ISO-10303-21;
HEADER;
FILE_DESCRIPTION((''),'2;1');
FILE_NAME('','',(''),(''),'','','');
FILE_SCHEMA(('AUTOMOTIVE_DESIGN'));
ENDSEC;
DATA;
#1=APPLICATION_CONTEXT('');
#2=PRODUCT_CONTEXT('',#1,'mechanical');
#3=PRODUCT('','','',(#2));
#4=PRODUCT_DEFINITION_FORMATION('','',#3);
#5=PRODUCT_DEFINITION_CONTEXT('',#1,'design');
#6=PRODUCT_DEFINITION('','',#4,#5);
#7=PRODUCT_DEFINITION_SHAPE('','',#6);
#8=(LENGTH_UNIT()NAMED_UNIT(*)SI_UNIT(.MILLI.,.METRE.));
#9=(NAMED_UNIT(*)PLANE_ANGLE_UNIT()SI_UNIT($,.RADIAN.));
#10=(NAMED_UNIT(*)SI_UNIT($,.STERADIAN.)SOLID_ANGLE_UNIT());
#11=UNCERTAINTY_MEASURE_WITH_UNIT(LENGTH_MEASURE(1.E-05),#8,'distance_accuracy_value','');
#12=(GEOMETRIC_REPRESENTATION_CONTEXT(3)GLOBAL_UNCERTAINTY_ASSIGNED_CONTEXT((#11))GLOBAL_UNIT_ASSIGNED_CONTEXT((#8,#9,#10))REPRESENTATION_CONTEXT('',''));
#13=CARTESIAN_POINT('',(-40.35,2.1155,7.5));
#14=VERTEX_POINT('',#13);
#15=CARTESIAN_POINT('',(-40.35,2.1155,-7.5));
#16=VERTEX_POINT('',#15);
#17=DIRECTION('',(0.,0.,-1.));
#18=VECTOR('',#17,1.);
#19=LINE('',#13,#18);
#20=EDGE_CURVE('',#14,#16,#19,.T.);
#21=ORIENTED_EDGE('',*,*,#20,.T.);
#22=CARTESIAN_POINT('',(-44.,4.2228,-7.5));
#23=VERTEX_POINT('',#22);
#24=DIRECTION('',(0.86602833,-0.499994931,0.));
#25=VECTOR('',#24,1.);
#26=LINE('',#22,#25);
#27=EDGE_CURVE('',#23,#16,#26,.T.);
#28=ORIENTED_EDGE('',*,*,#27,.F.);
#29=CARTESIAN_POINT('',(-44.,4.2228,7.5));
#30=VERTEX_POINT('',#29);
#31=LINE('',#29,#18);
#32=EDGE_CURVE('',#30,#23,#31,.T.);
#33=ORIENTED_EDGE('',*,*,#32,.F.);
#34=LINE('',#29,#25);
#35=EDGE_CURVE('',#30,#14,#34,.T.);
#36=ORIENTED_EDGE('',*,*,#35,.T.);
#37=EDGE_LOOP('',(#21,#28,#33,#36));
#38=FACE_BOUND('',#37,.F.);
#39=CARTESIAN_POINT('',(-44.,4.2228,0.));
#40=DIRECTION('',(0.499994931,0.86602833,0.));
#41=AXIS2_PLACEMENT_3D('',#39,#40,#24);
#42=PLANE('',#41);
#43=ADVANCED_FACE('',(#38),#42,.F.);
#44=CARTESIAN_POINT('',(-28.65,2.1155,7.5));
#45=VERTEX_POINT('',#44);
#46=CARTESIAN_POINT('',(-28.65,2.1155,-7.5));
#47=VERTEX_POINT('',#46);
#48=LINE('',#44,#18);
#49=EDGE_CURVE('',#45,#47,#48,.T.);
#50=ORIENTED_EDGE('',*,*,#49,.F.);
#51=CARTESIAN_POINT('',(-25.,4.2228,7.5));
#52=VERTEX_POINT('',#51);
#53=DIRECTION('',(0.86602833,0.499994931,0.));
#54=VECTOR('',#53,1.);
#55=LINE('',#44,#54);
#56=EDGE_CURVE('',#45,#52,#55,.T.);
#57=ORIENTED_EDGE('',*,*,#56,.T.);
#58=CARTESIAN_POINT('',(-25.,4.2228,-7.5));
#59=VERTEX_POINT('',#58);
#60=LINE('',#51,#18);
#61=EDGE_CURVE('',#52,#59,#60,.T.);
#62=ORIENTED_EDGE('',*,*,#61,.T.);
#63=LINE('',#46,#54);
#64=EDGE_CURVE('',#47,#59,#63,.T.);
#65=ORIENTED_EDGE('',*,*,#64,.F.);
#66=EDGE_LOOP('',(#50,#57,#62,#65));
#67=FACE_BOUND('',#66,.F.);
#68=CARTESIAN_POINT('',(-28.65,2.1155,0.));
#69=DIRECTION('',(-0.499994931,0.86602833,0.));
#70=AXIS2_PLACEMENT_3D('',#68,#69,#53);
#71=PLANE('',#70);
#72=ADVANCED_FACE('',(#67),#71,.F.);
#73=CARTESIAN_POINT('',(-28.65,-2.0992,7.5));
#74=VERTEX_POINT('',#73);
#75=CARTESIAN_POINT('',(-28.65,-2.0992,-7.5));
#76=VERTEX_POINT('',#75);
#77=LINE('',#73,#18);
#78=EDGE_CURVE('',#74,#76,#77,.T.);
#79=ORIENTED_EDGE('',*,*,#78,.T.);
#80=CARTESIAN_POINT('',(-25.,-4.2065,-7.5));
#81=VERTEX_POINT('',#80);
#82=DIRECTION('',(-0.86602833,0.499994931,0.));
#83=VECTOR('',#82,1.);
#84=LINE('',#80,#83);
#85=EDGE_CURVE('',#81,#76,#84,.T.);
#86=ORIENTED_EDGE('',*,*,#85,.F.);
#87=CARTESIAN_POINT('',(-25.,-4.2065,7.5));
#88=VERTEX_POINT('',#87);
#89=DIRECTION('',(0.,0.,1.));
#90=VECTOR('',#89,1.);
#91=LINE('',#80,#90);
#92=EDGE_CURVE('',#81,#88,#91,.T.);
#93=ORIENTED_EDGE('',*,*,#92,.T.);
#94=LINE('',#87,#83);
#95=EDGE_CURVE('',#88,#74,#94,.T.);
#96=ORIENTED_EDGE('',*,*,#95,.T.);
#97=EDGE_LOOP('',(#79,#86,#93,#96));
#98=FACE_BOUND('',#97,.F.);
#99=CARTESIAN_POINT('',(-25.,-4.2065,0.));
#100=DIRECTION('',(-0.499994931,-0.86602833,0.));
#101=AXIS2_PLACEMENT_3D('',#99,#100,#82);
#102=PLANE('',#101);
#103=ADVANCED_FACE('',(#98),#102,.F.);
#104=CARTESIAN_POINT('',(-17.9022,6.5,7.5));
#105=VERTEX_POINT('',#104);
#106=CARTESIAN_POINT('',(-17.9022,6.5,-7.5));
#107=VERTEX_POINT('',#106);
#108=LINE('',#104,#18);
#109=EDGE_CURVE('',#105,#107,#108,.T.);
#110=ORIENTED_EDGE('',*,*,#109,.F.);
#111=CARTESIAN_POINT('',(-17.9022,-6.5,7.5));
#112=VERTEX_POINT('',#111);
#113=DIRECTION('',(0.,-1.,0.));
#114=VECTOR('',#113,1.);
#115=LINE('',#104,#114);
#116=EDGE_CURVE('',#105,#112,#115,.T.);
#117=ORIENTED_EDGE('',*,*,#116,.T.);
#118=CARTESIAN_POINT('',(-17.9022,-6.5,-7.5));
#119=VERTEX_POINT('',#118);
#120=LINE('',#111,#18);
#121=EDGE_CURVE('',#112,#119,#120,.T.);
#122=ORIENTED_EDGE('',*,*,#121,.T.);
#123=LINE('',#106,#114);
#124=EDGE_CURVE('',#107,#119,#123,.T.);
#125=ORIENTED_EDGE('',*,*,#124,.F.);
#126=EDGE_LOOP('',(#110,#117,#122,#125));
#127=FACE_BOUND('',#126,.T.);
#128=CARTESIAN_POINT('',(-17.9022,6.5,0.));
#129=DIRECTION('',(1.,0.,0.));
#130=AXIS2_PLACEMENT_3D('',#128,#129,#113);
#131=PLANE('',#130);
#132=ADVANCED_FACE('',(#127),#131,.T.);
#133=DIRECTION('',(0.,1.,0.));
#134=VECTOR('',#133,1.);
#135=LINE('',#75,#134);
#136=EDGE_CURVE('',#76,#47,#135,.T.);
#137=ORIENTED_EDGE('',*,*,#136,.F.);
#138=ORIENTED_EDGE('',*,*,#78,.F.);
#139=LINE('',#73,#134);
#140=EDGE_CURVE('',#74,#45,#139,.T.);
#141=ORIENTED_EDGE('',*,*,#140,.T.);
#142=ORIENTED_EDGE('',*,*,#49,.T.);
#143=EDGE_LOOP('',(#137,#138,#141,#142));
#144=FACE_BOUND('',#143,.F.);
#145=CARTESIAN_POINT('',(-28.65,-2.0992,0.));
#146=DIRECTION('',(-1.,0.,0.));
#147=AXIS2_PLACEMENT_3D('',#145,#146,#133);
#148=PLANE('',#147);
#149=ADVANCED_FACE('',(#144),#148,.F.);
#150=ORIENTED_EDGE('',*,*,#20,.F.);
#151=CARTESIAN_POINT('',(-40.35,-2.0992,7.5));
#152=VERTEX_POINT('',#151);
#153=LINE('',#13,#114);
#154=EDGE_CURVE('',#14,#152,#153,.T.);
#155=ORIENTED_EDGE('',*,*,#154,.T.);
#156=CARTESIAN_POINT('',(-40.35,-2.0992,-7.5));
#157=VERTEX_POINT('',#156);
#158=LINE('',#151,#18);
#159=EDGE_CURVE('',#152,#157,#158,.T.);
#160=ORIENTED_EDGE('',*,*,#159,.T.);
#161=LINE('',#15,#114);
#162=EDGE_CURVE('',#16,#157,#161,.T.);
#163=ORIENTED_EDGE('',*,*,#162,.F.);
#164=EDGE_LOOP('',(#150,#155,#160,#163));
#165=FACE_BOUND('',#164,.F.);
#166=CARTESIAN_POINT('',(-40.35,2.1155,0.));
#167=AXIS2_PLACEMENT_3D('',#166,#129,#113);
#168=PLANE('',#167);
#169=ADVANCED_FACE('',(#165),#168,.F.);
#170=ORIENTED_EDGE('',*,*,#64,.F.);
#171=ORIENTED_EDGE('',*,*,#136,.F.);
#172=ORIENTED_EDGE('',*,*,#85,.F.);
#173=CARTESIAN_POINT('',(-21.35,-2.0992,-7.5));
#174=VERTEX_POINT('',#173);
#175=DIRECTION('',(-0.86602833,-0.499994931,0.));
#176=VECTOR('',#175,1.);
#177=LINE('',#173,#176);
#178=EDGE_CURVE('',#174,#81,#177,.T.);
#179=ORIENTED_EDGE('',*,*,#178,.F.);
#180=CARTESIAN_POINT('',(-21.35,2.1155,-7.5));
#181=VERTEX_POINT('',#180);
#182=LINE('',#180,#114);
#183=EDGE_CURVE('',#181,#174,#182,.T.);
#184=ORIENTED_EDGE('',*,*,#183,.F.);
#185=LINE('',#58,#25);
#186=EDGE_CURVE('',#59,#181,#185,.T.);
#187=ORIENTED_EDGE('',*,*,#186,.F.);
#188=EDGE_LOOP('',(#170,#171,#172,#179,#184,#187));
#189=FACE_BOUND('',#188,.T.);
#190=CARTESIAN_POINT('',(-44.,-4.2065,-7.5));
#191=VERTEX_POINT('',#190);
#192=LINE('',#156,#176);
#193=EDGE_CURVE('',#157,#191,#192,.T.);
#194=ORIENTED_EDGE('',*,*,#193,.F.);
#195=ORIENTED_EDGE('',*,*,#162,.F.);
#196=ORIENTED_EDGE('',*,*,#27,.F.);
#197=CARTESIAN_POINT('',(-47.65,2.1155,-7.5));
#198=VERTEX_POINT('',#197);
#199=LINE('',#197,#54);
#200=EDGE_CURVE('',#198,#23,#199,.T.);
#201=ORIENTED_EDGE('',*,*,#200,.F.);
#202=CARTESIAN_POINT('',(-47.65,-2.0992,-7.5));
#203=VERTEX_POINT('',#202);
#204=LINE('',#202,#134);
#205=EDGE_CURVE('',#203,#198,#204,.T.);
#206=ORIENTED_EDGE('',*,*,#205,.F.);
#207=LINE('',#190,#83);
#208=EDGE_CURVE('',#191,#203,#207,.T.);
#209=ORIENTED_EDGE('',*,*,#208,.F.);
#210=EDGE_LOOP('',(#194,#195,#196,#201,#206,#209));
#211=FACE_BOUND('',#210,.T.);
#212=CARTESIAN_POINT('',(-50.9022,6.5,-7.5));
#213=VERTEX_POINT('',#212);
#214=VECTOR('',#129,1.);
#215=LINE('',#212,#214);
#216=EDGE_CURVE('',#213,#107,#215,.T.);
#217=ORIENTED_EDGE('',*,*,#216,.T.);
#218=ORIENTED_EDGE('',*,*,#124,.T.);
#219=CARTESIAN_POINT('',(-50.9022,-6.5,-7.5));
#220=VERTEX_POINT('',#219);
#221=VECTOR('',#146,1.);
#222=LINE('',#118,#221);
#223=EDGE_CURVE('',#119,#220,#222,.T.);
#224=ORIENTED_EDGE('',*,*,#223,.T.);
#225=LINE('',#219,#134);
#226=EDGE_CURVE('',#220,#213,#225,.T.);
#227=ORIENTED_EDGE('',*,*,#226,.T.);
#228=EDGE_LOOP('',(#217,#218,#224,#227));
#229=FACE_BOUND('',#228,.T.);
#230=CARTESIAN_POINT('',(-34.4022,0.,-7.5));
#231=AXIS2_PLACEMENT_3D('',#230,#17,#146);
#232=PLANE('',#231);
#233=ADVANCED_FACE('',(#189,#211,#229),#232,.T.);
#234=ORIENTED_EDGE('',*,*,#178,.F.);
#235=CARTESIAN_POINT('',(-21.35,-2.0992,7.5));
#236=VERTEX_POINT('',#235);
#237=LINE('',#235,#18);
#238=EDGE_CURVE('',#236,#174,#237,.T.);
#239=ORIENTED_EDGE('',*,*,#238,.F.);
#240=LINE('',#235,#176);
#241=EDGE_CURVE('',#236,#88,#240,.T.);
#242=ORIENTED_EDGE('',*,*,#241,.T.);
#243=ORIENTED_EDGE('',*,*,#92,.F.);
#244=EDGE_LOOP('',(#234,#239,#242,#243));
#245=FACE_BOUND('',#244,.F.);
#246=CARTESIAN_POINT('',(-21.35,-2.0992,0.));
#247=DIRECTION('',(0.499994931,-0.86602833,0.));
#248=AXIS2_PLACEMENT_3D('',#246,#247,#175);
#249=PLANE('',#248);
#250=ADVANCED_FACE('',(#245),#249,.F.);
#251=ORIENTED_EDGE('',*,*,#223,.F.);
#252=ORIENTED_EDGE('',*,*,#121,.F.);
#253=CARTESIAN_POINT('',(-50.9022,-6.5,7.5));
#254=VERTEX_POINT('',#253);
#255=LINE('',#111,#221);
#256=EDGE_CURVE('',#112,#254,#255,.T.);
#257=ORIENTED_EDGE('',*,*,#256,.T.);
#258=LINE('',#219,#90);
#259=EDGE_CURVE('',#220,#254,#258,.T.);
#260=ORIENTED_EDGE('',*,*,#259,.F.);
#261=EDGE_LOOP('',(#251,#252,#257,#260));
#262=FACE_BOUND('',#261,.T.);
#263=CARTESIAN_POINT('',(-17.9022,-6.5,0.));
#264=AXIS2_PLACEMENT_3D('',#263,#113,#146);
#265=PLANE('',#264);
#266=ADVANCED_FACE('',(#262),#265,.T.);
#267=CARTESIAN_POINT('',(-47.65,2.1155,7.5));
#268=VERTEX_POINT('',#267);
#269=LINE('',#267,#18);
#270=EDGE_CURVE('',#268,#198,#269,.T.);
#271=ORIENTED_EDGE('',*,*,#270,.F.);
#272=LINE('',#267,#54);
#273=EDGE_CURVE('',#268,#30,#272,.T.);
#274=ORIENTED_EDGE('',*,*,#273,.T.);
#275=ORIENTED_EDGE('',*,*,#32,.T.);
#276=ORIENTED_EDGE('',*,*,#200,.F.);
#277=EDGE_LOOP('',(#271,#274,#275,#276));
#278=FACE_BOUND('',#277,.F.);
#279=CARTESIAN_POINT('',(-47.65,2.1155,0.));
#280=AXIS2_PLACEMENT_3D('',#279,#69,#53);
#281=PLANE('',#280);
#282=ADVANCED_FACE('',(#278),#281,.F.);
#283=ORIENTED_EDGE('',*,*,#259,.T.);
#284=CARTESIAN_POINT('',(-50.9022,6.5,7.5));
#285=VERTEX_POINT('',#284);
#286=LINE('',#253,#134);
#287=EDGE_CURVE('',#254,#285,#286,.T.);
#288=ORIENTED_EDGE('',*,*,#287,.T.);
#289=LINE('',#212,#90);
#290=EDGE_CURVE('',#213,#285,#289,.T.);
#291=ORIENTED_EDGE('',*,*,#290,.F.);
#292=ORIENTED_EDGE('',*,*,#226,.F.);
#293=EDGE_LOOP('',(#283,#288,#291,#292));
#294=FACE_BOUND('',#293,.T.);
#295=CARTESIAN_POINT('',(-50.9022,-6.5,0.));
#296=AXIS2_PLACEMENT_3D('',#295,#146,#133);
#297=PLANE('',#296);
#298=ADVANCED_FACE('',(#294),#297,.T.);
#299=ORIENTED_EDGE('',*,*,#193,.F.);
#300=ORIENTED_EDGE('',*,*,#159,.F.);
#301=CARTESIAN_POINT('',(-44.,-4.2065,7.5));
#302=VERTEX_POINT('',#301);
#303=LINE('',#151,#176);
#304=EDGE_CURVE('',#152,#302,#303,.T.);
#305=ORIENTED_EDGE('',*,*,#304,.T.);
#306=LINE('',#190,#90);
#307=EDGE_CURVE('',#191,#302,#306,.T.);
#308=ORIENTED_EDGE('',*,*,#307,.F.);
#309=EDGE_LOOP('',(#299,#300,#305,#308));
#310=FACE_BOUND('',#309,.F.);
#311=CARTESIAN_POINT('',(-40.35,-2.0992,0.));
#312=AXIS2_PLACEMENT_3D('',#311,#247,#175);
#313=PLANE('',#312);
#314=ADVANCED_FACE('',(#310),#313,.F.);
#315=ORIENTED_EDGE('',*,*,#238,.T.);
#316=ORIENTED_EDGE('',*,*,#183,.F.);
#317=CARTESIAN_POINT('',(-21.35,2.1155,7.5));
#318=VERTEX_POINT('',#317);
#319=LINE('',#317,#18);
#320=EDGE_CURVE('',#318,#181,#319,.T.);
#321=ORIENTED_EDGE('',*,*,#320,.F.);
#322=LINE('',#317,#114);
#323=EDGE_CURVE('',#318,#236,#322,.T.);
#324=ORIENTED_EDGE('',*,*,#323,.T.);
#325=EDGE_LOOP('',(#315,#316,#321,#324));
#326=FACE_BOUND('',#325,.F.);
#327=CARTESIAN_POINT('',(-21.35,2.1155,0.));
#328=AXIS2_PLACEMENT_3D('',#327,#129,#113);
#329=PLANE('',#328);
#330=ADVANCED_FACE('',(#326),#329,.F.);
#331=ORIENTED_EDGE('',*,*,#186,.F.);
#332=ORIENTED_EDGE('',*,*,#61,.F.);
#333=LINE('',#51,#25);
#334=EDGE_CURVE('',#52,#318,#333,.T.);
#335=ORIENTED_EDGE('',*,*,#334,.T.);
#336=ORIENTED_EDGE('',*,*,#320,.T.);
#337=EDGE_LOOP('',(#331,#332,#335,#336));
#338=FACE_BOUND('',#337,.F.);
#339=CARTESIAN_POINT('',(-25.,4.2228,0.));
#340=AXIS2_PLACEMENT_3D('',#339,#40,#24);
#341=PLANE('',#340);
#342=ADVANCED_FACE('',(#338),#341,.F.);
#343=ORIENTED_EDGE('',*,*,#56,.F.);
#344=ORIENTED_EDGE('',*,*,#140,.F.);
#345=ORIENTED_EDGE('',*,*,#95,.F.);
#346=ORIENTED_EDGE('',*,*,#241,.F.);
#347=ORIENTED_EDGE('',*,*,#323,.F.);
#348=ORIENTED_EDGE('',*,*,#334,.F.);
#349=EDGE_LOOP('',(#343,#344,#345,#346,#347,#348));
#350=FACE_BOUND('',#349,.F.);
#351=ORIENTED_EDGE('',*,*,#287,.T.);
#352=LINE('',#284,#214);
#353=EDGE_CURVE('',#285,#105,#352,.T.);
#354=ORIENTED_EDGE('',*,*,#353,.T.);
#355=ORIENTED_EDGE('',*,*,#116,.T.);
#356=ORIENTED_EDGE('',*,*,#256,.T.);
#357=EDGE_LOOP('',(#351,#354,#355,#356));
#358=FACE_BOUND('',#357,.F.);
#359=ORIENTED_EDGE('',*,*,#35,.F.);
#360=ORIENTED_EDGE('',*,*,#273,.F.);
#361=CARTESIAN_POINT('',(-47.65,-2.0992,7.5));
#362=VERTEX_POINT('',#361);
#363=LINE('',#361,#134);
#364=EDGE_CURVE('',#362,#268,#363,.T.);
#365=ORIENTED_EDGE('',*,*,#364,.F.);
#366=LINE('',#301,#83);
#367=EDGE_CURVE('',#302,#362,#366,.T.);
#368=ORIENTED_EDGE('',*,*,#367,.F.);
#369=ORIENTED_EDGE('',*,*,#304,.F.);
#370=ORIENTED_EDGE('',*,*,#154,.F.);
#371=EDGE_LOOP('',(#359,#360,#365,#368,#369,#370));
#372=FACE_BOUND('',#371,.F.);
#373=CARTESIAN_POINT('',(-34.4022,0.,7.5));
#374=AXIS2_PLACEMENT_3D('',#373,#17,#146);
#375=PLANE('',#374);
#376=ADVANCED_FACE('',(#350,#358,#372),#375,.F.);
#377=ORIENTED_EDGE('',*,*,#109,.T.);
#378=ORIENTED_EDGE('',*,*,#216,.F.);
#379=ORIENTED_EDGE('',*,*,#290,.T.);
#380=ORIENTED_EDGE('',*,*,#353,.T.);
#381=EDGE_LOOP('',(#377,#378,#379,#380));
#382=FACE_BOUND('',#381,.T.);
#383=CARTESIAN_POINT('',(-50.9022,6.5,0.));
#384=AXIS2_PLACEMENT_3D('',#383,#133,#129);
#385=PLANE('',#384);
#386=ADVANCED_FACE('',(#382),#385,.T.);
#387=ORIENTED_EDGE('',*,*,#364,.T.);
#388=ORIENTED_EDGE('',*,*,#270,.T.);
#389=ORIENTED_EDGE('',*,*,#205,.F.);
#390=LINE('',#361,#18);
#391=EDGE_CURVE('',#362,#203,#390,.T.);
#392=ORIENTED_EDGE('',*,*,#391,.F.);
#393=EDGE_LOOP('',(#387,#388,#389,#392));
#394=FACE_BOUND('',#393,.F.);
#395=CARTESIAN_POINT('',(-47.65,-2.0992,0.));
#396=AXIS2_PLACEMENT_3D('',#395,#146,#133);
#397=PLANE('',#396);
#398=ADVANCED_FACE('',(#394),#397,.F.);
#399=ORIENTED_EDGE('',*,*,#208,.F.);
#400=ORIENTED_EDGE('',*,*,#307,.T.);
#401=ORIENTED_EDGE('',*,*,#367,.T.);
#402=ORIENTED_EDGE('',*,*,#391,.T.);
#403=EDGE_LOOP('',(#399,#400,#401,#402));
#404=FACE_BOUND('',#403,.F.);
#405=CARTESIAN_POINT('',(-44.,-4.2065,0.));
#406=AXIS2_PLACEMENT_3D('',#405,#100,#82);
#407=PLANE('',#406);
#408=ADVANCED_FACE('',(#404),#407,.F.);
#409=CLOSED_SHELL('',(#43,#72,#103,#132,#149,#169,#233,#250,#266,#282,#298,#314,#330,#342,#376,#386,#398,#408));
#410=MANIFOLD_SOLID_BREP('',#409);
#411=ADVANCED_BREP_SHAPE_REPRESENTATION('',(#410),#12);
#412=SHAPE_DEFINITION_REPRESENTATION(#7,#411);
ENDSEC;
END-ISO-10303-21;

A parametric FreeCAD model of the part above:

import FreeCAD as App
import Part
import Sketcher
from FreeCAD import Vector
Q = App.Units.Quantity

doc = App.newDocument("Part")
body = doc.addObject("PartDesign::Body", "Body")

sketch1 = body.newObject("Sketcher::SketchObject", "Sketch")
sketch1.AttachmentSupport = (doc.getObject("XY_Plane"), [""])
sketch1.MapMode = "FlatFace"
sketch1.addGeometry([
    Part.LineSegment(Vector(-17.9, 6.5, 0), Vector(-50.9, 6.5, 0)),
    Part.LineSegment(Vector(-50.9, 6.5, 0), Vector(-50.9, -6.5, 0)),
    Part.LineSegment(Vector(-50.9, -6.5, 0), Vector(-17.9, -6.5, 0)),
    Part.LineSegment(Vector(-17.9, -6.5, 0), Vector(-17.9, 6.5, 0)),
    Part.LineSegment(Vector(-47.6, -2.1, 0), Vector(-47.6, 2.1, 0)),
    Part.LineSegment(Vector(-47.6, 2.1, 0), Vector(-44, 4.2, 0)),
    Part.LineSegment(Vector(-44, 4.2, 0), Vector(-40.4, 2.1, 0)),
    Part.LineSegment(Vector(-40.4, 2.1, 0), Vector(-40.4, -2.1, 0)),
    Part.LineSegment(Vector(-40.4, -2.1, 0), Vector(-44, -4.2, 0)),
    Part.LineSegment(Vector(-44, -4.2, 0), Vector(-47.6, -2.1, 0)),
    Part.LineSegment(Vector(-28.6, -2.1, 0), Vector(-28.6, 2.1, 0)),
    Part.LineSegment(Vector(-28.6, 2.1, 0), Vector(-25, 4.2, 0)),
    Part.LineSegment(Vector(-25, 4.2, 0), Vector(-21.4, 2.1, 0)),
    Part.LineSegment(Vector(-21.4, 2.1, 0), Vector(-21.4, -2.1, 0)),
    Part.LineSegment(Vector(-21.4, -2.1, 0), Vector(-25, -4.2, 0)),
    Part.LineSegment(Vector(-25, -4.2, 0), Vector(-28.6, -2.1, 0)),
], False)
sketch1.addConstraint([
    Sketcher.Constraint("Coincident", 0, 2, 1, 1),
    Sketcher.Constraint("Coincident", 1, 2, 2, 1),
    Sketcher.Constraint("Coincident", 2, 2, 3, 1),
    Sketcher.Constraint("Coincident", 3, 2, 0, 1),
    Sketcher.Constraint("Coincident", 4, 2, 5, 1),
    Sketcher.Constraint("Coincident", 5, 2, 6, 1),
    Sketcher.Constraint("Coincident", 6, 2, 7, 1),
    Sketcher.Constraint("Coincident", 7, 2, 8, 1),
    Sketcher.Constraint("Coincident", 8, 2, 9, 1),
    Sketcher.Constraint("Coincident", 9, 2, 4, 1),
    Sketcher.Constraint("Coincident", 10, 2, 11, 1),
    Sketcher.Constraint("Coincident", 11, 2, 12, 1),
    Sketcher.Constraint("Coincident", 12, 2, 13, 1),
    Sketcher.Constraint("Coincident", 13, 2, 14, 1),
    Sketcher.Constraint("Coincident", 14, 2, 15, 1),
    Sketcher.Constraint("Coincident", 15, 2, 10, 1),
    Sketcher.Constraint("Horizontal", 0),
    Sketcher.Constraint("Vertical", 1),
    Sketcher.Constraint("Horizontal", 2),
    Sketcher.Constraint("Vertical", 3),
    Sketcher.Constraint("Vertical", 4),
    Sketcher.Constraint("Vertical", 7),
    Sketcher.Constraint("Vertical", 10),
    Sketcher.Constraint("Vertical", 13),
    Sketcher.Constraint("Parallel", 5, 8),
    Sketcher.Constraint("Parallel", 6, 9),
    Sketcher.Constraint("Parallel", 8, 11),
    Sketcher.Constraint("Parallel", 9, 12),
    Sketcher.Constraint("Parallel", 11, 14),
    Sketcher.Constraint("Parallel", 12, 15),
    Sketcher.Constraint("Horizontal", 4, 2, 6, 2),
    Sketcher.Constraint("Horizontal", 7, 2, 9, 2),
    Sketcher.Constraint("Horizontal", 6, 2, 10, 2),
    Sketcher.Constraint("Horizontal", 5, 2, 11, 2),
    Sketcher.Constraint("Horizontal", 10, 2, 12, 2),
    Sketcher.Constraint("Horizontal", 9, 2, 13, 2),
    Sketcher.Constraint("Horizontal", 8, 2, 14, 2),
    Sketcher.Constraint("Vertical", 5, 2, 8, 2),
    Sketcher.Constraint("DistanceX", 0, 2, 0, 1, 33.0),
    Sketcher.Constraint("DistanceY", 1, 2, 1, 1, 13.0),
    Sketcher.Constraint("Angle", 5, Q("29.9997 deg")),
    Sketcher.Constraint("DistanceX", 5, 2, -1, 1, 44.0),
    Sketcher.Constraint("DistanceX", 11, 2, -1, 1, 25.0),
    Sketcher.Constraint("DistanceY", -1, 1, 0, 2, 6.5),
    Sketcher.Constraint("DistanceX", 4, 2, 6, 2, 7.3),
    Sketcher.Constraint("DistanceY", 4, 1, 4, 2, 4.2147),
    Sketcher.Constraint("DistanceX", 0, 2, -1, 1, 50.9022),
    Sketcher.Constraint("DistanceY", -1, 1, 4, 2, 2.1155),
])
pad1 = body.newObject("PartDesign::Pad", "Pad")
pad1.Profile = sketch1
pad1.Length = 15
pad1.Midplane = True

doc.recompute()
